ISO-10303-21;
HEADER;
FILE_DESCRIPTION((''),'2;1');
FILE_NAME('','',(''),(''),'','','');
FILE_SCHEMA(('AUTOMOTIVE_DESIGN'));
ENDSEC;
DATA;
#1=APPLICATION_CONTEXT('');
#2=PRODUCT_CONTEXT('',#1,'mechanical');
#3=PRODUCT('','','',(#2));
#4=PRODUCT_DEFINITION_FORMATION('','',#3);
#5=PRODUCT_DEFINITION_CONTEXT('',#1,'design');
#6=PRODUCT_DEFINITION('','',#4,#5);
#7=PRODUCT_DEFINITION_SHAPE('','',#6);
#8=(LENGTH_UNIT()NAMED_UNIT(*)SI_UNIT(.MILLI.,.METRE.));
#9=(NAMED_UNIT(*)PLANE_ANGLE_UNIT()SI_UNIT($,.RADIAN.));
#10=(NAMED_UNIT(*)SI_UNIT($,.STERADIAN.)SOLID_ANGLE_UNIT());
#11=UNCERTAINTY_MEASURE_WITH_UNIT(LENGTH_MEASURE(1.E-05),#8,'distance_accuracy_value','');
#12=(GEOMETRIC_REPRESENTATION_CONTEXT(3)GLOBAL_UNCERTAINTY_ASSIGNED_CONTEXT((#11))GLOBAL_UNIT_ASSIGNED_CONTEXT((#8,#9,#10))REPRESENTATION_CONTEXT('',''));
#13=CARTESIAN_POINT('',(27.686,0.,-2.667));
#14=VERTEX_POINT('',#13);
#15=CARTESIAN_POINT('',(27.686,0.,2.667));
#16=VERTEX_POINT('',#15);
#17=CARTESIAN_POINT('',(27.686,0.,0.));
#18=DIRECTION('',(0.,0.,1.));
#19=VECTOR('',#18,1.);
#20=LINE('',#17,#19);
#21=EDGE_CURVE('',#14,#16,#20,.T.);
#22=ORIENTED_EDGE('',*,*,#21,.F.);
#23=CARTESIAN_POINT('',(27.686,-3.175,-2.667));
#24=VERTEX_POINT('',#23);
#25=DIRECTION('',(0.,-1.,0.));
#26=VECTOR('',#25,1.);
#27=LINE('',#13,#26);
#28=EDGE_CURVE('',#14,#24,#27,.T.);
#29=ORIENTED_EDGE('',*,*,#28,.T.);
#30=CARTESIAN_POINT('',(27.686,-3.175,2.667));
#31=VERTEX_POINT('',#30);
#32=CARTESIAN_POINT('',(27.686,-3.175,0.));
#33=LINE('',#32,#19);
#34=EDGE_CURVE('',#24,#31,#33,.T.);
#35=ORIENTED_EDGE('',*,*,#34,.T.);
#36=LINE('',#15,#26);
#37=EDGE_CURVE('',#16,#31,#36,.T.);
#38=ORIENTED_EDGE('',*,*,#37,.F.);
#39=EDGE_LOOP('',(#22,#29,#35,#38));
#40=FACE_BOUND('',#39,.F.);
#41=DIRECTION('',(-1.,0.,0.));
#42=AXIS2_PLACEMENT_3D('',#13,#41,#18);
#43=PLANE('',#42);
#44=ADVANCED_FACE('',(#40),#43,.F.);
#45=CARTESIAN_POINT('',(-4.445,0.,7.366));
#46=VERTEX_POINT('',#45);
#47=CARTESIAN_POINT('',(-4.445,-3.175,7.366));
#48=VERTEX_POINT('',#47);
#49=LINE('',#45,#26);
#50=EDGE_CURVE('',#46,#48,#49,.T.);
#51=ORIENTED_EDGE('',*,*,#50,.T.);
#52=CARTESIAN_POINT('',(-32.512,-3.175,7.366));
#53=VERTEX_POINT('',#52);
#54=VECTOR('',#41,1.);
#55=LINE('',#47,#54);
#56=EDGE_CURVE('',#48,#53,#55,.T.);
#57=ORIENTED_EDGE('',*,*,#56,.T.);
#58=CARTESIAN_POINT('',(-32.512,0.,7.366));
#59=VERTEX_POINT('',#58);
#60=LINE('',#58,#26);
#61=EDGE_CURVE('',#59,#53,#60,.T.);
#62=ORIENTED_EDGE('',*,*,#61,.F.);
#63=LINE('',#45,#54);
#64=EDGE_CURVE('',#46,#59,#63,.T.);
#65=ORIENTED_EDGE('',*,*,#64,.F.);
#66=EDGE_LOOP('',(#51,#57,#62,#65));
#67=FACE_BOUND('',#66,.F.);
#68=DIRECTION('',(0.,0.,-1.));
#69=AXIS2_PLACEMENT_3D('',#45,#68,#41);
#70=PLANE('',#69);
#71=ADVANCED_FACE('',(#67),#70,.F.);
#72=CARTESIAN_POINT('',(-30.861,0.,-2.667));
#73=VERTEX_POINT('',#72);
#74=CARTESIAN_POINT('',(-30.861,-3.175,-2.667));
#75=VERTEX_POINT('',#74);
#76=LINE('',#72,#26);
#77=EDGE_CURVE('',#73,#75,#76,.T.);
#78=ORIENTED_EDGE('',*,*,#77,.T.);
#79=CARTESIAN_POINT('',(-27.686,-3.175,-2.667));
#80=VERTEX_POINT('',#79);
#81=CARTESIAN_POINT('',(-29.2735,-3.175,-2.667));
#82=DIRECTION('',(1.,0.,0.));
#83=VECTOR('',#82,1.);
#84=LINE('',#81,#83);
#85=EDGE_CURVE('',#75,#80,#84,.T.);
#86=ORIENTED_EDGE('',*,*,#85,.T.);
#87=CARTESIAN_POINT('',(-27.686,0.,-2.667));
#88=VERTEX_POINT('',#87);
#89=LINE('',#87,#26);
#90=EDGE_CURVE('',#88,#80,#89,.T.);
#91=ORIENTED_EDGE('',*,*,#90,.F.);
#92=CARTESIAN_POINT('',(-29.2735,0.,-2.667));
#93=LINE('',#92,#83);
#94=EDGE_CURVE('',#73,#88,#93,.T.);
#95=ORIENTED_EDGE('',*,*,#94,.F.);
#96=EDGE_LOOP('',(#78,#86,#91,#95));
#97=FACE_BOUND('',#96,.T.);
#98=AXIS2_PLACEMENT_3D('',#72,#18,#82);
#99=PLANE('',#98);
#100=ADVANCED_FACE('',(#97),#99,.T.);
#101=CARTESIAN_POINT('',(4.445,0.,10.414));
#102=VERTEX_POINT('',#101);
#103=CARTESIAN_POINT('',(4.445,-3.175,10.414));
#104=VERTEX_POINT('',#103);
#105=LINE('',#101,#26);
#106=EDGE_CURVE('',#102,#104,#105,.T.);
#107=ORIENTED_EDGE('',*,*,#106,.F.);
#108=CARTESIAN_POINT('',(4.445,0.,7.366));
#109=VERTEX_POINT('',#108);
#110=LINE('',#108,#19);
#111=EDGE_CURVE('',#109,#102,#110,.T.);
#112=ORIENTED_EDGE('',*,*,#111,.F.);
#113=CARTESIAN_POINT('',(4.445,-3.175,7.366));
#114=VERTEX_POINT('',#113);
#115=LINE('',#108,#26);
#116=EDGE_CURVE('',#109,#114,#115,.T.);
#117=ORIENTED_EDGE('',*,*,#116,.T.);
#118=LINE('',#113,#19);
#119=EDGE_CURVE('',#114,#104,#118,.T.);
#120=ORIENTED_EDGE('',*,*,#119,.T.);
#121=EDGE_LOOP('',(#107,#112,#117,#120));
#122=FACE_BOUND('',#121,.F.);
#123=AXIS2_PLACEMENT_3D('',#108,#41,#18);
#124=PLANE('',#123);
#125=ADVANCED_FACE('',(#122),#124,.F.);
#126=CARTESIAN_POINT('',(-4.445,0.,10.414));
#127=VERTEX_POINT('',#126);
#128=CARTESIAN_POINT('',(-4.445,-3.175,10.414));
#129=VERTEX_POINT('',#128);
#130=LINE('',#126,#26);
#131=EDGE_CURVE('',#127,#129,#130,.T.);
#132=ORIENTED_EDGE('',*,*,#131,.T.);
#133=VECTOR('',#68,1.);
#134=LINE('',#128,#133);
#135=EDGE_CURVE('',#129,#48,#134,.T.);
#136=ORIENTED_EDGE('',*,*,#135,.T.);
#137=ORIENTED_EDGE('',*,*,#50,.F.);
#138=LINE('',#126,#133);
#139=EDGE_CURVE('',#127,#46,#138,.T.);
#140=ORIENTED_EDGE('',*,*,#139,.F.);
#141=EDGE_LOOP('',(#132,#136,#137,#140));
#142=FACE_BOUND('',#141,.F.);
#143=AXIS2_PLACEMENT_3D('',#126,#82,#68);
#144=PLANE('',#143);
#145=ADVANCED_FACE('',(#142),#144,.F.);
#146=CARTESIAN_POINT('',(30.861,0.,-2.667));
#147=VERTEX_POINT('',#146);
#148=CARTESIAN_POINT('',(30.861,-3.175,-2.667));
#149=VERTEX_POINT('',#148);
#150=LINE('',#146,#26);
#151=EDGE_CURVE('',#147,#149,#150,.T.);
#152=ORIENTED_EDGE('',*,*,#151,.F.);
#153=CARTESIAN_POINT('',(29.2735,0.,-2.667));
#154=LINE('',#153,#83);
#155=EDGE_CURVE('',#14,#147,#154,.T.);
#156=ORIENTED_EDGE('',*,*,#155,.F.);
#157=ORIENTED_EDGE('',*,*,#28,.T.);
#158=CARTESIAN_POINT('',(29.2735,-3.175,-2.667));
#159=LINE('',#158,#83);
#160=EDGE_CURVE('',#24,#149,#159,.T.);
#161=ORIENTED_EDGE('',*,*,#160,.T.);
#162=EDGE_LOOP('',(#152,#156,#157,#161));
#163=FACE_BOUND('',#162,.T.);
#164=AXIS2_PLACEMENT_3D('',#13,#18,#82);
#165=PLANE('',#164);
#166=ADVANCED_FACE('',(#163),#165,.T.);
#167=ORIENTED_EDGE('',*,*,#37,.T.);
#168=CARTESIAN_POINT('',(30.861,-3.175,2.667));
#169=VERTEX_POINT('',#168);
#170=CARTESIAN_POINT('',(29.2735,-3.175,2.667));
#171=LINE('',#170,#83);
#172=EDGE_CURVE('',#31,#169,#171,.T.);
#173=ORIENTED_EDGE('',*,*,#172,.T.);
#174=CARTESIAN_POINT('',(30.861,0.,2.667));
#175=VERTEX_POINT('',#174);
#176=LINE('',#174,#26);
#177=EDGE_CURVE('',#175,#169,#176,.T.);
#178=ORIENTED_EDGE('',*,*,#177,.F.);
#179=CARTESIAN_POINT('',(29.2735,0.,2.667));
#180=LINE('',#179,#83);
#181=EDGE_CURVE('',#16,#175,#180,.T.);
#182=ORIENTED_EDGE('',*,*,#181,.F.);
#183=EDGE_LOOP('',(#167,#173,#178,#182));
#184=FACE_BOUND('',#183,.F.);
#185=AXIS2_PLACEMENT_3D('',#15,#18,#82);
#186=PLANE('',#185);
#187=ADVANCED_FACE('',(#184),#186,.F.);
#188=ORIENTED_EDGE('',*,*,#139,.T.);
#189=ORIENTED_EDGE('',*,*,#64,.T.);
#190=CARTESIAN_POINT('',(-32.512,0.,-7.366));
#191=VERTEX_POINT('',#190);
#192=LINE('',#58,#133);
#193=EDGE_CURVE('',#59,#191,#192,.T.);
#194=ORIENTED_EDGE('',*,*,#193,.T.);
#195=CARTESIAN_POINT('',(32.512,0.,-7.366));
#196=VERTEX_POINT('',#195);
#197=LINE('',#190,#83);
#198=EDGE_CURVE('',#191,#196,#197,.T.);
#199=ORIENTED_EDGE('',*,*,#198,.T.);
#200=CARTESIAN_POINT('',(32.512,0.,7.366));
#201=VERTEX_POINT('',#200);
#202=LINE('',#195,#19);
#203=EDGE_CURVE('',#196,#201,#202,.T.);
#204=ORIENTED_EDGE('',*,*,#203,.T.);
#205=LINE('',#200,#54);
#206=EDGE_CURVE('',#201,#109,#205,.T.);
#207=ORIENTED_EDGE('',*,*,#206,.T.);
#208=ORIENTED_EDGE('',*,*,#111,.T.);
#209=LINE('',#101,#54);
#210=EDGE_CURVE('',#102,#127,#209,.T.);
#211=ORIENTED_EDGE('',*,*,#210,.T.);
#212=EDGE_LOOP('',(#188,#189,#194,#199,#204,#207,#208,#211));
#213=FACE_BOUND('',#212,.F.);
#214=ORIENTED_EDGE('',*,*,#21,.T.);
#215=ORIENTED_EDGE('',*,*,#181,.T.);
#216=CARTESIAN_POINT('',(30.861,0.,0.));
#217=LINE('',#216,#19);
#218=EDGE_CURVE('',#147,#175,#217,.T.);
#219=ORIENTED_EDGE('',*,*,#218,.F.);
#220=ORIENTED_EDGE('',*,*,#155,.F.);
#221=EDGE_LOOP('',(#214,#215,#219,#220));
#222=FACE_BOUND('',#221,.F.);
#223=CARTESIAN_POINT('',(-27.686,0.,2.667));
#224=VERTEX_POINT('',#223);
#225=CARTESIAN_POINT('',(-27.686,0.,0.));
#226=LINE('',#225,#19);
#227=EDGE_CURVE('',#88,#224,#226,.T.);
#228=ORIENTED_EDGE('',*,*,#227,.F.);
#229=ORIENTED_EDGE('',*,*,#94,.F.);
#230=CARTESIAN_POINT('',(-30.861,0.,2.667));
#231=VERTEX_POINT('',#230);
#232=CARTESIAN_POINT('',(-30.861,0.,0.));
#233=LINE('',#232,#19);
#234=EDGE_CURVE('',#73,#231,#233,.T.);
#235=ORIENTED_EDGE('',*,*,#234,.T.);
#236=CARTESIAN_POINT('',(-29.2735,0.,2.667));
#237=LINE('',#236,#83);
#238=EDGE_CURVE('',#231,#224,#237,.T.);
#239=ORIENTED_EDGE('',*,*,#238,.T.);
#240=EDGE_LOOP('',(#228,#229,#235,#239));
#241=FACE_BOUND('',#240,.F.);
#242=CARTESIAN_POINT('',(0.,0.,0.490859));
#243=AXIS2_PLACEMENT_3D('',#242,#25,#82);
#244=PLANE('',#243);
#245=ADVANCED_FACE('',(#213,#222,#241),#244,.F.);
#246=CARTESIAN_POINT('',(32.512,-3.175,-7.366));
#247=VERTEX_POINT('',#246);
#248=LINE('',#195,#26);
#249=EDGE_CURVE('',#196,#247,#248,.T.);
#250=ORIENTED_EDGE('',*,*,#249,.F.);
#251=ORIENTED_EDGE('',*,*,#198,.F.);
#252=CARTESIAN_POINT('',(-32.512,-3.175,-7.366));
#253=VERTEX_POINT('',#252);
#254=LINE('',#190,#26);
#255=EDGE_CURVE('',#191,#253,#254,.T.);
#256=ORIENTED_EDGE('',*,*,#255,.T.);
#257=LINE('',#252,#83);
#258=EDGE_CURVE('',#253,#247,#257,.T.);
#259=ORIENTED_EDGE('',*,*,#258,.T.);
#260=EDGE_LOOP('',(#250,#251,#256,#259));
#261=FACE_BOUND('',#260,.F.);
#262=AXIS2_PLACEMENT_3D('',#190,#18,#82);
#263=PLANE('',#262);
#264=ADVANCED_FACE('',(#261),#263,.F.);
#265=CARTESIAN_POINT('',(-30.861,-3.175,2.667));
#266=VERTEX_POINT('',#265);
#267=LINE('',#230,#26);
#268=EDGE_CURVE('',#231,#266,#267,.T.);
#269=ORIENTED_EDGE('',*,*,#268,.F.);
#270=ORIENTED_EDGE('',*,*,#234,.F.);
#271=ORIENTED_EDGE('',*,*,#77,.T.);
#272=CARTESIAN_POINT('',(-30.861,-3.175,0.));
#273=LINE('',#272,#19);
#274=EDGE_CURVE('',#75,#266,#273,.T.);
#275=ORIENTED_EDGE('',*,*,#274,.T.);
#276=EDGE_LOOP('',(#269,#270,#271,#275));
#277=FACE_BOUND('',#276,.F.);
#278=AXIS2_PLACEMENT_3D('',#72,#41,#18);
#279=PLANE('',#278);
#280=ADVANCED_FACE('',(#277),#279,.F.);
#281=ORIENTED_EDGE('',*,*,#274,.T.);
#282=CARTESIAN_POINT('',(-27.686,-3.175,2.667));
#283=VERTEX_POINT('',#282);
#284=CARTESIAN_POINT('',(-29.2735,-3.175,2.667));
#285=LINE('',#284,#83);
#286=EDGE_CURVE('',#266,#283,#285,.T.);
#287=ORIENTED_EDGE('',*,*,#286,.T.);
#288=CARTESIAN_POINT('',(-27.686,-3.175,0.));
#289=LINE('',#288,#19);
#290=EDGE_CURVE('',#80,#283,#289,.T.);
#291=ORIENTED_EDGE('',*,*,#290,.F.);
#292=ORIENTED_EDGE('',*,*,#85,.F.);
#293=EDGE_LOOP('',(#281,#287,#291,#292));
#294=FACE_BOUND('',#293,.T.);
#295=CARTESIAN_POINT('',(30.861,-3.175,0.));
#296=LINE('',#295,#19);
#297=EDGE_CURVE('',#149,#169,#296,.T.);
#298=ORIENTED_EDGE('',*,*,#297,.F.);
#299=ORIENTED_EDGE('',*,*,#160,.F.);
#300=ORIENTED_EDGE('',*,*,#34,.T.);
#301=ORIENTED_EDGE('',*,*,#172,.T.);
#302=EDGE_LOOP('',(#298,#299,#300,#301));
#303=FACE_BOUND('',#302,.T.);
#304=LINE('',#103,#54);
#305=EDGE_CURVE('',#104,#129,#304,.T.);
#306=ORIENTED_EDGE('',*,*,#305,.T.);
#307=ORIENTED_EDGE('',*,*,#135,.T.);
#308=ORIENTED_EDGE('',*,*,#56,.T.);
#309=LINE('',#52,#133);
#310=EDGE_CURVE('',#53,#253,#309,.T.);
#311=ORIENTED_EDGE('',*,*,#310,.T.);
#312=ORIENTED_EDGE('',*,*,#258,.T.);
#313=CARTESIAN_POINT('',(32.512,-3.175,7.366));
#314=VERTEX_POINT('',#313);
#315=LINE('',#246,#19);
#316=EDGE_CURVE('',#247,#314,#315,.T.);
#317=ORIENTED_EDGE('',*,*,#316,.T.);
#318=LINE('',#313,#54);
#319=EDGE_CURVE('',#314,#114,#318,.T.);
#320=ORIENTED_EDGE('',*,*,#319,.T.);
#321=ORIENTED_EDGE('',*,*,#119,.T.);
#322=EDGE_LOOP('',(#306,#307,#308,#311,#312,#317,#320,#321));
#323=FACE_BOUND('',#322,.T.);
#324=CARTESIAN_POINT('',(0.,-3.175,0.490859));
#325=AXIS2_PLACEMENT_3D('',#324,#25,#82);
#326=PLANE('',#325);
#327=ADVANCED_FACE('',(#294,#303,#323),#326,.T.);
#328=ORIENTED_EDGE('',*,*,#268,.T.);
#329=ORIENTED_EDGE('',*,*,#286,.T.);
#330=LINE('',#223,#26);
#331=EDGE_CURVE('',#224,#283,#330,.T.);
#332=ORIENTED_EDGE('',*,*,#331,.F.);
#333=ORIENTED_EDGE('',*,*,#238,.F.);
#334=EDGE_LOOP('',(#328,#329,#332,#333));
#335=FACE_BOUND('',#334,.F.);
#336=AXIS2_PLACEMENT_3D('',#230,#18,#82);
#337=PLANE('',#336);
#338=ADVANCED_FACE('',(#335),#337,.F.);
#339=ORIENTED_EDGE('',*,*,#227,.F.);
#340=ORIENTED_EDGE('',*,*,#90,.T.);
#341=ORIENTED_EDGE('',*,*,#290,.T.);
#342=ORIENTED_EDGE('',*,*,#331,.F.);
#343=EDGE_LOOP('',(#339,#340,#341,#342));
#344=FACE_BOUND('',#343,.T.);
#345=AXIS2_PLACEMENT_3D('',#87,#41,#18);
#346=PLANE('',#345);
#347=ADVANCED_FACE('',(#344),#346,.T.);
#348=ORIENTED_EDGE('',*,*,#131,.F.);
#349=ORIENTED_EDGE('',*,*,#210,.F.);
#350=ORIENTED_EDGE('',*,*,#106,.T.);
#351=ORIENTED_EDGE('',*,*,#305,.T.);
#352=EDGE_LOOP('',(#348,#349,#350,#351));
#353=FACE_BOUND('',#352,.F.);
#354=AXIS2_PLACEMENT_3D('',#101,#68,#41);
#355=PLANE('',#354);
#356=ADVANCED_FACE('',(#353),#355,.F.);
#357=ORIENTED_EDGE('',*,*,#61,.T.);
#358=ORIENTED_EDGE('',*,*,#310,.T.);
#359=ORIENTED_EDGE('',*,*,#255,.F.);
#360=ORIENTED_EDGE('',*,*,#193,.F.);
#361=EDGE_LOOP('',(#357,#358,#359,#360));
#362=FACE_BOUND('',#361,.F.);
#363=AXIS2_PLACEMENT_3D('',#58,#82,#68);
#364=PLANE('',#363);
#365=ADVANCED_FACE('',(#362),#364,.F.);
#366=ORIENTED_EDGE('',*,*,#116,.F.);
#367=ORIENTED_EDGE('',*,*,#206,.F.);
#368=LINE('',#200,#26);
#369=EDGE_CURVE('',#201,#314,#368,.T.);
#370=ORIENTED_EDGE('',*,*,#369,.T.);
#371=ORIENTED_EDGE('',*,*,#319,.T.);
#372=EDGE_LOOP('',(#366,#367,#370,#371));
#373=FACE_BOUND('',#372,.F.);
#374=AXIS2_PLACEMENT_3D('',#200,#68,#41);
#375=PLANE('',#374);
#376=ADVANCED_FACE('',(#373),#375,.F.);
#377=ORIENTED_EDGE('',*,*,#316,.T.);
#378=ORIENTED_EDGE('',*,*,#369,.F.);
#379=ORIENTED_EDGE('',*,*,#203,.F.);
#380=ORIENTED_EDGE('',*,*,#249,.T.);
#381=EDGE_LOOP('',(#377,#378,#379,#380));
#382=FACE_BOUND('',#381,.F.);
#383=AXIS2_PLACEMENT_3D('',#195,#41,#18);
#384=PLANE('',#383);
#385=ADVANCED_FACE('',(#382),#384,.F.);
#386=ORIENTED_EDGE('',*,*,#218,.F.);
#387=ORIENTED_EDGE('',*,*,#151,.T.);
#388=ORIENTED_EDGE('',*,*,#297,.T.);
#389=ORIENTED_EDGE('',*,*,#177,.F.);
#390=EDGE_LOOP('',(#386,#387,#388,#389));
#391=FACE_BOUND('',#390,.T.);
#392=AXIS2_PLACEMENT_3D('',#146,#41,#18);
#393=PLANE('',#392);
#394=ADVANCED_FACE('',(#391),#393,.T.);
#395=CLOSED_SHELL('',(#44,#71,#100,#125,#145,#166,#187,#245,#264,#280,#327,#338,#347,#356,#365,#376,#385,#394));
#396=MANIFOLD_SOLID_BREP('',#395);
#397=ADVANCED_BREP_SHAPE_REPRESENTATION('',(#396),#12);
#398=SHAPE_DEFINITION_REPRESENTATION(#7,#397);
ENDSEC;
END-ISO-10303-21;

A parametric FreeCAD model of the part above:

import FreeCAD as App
import Part
import Sketcher
Q = App.Units.Quantity

doc = App.newDocument("Part")
body = doc.addObject("PartDesign::Body", "Body")

sketch1 = doc.addObject("Sketcher::SketchObject", "Sketch")
body.addObject(sketch1)
sketch1.AttachmentSupport = (doc.XZ_Plane, [""])
sketch1.MapMode = "FlatFace"
sketch1.addGeometry(Part.LineSegment(App.Vector(-32.5, 7.4, 0), App.Vector(-32.5, -7.4, 0)), False)
sketch1.addGeometry(Part.LineSegment(App.Vector(-32.5, -7.4, 0), App.Vector(32.5, -7.4, 0)), False)
sketch1.addGeometry(Part.LineSegment(App.Vector(32.5, -7.4, 0), App.Vector(32.5, 7.4, 0)), False)
sketch1.addGeometry(Part.LineSegment(App.Vector(32.5, 7.4, 0), App.Vector(4.4, 7.4, 0)), False)
sketch1.addGeometry(Part.LineSegment(App.Vector(4.4, 7.4, 0), App.Vector(4.4, 10.4, 0)), False)
sketch1.addGeometry(Part.LineSegment(App.Vector(4.4, 10.4, 0), App.Vector(-4.4, 10.4, 0)), False)
sketch1.addGeometry(Part.LineSegment(App.Vector(-4.4, 10.4, 0), App.Vector(-4.4, 7.4, 0)), False)
sketch1.addGeometry(Part.LineSegment(App.Vector(-4.4, 7.4, 0), App.Vector(-32.5, 7.4, 0)), False)
sketch1.addGeometry(Part.LineSegment(App.Vector(-27.7, -2.7, 0), App.Vector(-30.9, -2.7, 0)), False)
sketch1.addGeometry(Part.LineSegment(App.Vector(-30.9, -2.7, 0), App.Vector(-30.9, 2.7, 0)), False)
sketch1.addGeometry(Part.LineSegment(App.Vector(-30.9, 2.7, 0), App.Vector(-27.7, 2.7, 0)), False)
sketch1.addGeometry(Part.LineSegment(App.Vector(-27.7, 2.7, 0), App.Vector(-27.7, -2.7, 0)), False)
sketch1.addGeometry(Part.LineSegment(App.Vector(30.9, -2.7, 0), App.Vector(27.7, -2.7, 0)), False)
sketch1.addGeometry(Part.LineSegment(App.Vector(27.7, -2.7, 0), App.Vector(27.7, 2.7, 0)), False)
sketch1.addGeometry(Part.LineSegment(App.Vector(27.7, 2.7, 0), App.Vector(30.9, 2.7, 0)), False)
sketch1.addGeometry(Part.LineSegment(App.Vector(30.9, 2.7, 0), App.Vector(30.9, -2.7, 0)), False)
sketch1.addConstraint(Sketcher.Constraint("Coincident", 0, 2, 1, 1))
sketch1.addConstraint(Sketcher.Constraint("Coincident", 1, 2, 2, 1))
sketch1.addConstraint(Sketcher.Constraint("Coincident", 2, 2, 3, 1))
sketch1.addConstraint(Sketcher.Constraint("Coincident", 3, 2, 4, 1))
sketch1.addConstraint(Sketcher.Constraint("Coincident", 4, 2, 5, 1))
sketch1.addConstraint(Sketcher.Constraint("Coincident", 5, 2, 6, 1))
sketch1.addConstraint(Sketcher.Constraint("Coincident", 6, 2, 7, 1))
sketch1.addConstraint(Sketcher.Constraint("Coincident", 7, 2, 0, 1))
sketch1.addConstraint(Sketcher.Constraint("Coincident", 8, 2, 9, 1))
sketch1.addConstraint(Sketcher.Constraint("Coincident", 9, 2, 10, 1))
sketch1.addConstraint(Sketcher.Constraint("Coincident", 10, 2, 11, 1))
sketch1.addConstraint(Sketcher.Constraint("Coincident", 11, 2, 8, 1))
sketch1.addConstraint(Sketcher.Constraint("Coincident", 12, 2, 13, 1))
sketch1.addConstraint(Sketcher.Constraint("Coincident", 13, 2, 14, 1))
sketch1.addConstraint(Sketcher.Constraint("Coincident", 14, 2, 15, 1))
sketch1.addConstraint(Sketcher.Constraint("Coincident", 15, 2, 12, 1))
sketch1.addConstraint(Sketcher.Constraint("Vertical", 0))
sketch1.addConstraint(Sketcher.Constraint("Horizontal", 1))
sketch1.addConstraint(Sketcher.Constraint("Vertical", 2))
sketch1.addConstraint(Sketcher.Constraint("Horizontal", 3))
sketch1.addConstraint(Sketcher.Constraint("Vertical", 4))
sketch1.addConstraint(Sketcher.Constraint("Horizontal", 5))
sketch1.addConstraint(Sketcher.Constraint("Vertical", 6))
sketch1.addConstraint(Sketcher.Constraint("Horizontal", 7))
sketch1.addConstraint(Sketcher.Constraint("Horizontal", 8))
sketch1.addConstraint(Sketcher.Constraint("Vertical", 9))
sketch1.addConstraint(Sketcher.Constraint("Horizontal", 10))
sketch1.addConstraint(Sketcher.Constraint("Vertical", 11))
sketch1.addConstraint(Sketcher.Constraint("Horizontal", 12))
sketch1.addConstraint(Sketcher.Constraint("Vertical", 13))
sketch1.addConstraint(Sketcher.Constraint("Horizontal", 14))
sketch1.addConstraint(Sketcher.Constraint("Vertical", 15))
sketch1.addConstraint(Sketcher.Constraint("Symmetric", 0, 2, 2, 2, -1, 1))
sketch1.addConstraint(Sketcher.Constraint("Symmetric", 10, 2, 12, 2, -1, 1))
sketch1.addConstraint(Sketcher.Constraint("Symmetric", 8, 2, 14, 2, -1, 1))
sketch1.addConstraint(Sketcher.Constraint("Symmetric", 3, 2, 6, 2, -2))
sketch1.addConstraint(Sketcher.Constraint("Horizontal", 11, 2, 12, 2))
sketch1.addConstraint(Sketcher.Constraint("DistanceX", 1, 1, 1, 2, Q("2.56 in")))
sketch1.addConstraint(Sketcher.Constraint("DistanceX", 5, 2, 5, 1, Q("0.35 in")))
sketch1.addConstraint(Sketcher.Constraint("DistanceY", 0, 2, 0, 1, Q("0.58 in")))
sketch1.addConstraint(Sketcher.Constraint("DistanceY", 4, 1, 4, 2, Q("0.12 in")))
sketch1.addConstraint(Sketcher.Constraint("DistanceY", 9, 1, 9, 2, Q("0.21 in")))
sketch1.addConstraint(Sketcher.Constraint("DistanceX", 8, 2, 8, 1, Q("0.125 in")))
sketch1.addConstraint(Sketcher.Constraint("DistanceX", 10, 2, -1, 1, Q("1.09 in")))
pad1 = doc.addObject("PartDesign::Pad", "Pad")
body.addObject(pad1)
pad1.Profile = sketch1
pad1.Length = Q("0.125 in")

doc.recompute()
